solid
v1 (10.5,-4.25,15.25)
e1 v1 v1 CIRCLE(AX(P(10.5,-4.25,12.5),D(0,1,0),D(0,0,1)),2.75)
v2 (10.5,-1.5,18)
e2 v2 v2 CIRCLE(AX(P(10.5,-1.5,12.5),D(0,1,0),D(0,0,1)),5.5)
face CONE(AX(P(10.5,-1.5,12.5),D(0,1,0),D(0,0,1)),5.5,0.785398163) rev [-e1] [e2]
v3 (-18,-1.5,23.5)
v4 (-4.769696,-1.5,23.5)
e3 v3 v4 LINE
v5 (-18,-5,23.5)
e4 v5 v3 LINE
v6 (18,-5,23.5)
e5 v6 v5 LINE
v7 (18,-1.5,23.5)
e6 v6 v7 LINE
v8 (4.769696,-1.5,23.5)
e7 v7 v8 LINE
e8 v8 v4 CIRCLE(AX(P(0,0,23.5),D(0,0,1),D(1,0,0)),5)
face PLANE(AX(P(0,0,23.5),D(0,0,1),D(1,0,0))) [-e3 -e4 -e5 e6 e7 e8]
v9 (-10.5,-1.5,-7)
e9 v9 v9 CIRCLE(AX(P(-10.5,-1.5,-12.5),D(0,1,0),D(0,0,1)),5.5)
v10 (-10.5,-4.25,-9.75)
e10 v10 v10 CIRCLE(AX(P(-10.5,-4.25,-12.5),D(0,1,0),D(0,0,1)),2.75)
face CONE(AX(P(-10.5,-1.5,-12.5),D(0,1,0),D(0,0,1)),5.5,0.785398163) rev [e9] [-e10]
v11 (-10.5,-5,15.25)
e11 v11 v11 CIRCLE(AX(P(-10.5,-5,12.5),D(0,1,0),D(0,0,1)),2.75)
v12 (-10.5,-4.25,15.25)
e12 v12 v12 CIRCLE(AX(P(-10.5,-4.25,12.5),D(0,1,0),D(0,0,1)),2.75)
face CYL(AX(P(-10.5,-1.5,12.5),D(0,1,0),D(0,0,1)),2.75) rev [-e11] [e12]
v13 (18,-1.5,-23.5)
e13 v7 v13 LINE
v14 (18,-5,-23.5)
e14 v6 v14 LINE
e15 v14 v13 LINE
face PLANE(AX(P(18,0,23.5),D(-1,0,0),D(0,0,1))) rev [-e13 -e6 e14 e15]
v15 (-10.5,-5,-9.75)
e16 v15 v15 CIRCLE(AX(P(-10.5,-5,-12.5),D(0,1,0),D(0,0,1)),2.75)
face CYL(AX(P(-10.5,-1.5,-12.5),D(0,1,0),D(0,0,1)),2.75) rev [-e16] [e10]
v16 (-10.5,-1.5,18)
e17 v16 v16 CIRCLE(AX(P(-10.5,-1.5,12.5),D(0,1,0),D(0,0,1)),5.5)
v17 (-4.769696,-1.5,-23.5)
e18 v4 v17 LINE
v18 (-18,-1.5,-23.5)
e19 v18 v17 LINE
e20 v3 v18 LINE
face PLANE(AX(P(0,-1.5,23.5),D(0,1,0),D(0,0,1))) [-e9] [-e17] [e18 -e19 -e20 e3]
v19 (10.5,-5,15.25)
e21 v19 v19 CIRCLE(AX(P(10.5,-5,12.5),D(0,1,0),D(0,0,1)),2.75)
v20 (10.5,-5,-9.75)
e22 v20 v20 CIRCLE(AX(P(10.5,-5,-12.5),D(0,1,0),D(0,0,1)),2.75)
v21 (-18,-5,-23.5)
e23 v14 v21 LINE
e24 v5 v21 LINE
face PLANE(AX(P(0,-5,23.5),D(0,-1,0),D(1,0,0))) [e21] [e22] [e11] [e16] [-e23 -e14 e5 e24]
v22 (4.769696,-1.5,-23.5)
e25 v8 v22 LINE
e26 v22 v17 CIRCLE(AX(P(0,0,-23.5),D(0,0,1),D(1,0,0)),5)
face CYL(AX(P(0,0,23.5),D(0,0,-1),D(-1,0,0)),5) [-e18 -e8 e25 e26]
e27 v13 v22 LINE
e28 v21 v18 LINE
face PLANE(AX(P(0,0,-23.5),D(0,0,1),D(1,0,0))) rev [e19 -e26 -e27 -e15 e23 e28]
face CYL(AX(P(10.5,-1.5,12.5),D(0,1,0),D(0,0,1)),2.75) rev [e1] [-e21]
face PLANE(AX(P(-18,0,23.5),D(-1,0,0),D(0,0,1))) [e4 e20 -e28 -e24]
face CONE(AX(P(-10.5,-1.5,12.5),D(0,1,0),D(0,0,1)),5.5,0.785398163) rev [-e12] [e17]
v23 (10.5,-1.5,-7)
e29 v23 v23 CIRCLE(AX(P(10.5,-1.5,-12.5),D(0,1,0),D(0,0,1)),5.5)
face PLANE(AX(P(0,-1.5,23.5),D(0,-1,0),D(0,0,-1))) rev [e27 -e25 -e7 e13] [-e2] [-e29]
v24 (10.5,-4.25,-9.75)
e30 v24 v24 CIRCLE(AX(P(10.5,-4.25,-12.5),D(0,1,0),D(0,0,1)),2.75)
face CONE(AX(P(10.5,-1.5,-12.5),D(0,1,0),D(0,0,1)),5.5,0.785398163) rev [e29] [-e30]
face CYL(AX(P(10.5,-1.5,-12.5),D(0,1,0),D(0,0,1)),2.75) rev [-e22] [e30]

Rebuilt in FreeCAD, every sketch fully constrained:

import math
import FreeCAD as App
import Part
import Sketcher
from FreeCAD import Vector
Q = App.Units.Quantity

doc = App.newDocument("Part")
params = doc.addObject("Spreadsheet::Sheet", "Params")
for row, (alias, value) in enumerate([
    ("sketch1_radius", "5 mm"),
    ("sketch1_width", "18 mm"),
    ("sketch1_height", "3.5 mm"),
    ("pad1_length", "47 mm"),
    ("sketch2_height", "5.5 mm"),
    ("sketch2_width", "0.75 mm"),
    ("groove_angle", "360 deg"),
    ("linearpattern_pitch", "25 mm"),
    ("sketch3_height", "5.5 mm"),
    ("sketch3_width", "0.75 mm"),
    ("groove2_angle", "360 deg"),
], start=1):
    params.set(f"A{row}", alias)
    params.set(f"B{row}", "=" + value)
    params.setAlias(f"B{row}", alias)

body = doc.addObject("PartDesign::Body", "Body")

sketch1 = body.newObject("Sketcher::SketchObject", "Sketch")
sketch1.AttachmentSupport = (doc.getObject("XY_Plane"), [""])
sketch1.MapMode = "FlatFace"
sketch1.addGeometry(Part.LineSegment(Vector(-18, -5, 0), Vector(0, -5, 0)), False)
sketch1.addGeometry(Part.ArcOfCircle(Part.Circle(Vector(0, 0, 0), Vector(0, 0, 1), 5), math.radians(-90), math.radians(197.457603)), False)
sketch1.addGeometry(Part.LineSegment(Vector(-4.769696, -1.5, 0), Vector(-18, -1.5, 0)), False)
sketch1.addGeometry(Part.LineSegment(Vector(-18, -1.5, 0), Vector(-18, -5, 0)), False)
sketch1.addConstraint(Sketcher.Constraint("Tangent", 0, 2, 1, 1))
sketch1.addConstraint(Sketcher.Constraint("Coincident", 1, 2, 2, 1))
sketch1.addConstraint(Sketcher.Constraint("Coincident", 2, 2, 3, 1))
sketch1.addConstraint(Sketcher.Constraint("Coincident", 3, 2, 0, 1))
sketch1.addConstraint(Sketcher.Constraint("Horizontal", 0))
sketch1.addConstraint(Sketcher.Constraint("Horizontal", 2))
sketch1.addConstraint(Sketcher.Constraint("Vertical", 3))
sketch1.addConstraint(Sketcher.Constraint("Coincident", 1, 3, -1, 1))
sketch1.addConstraint(Sketcher.Constraint("Radius", 1, 5.0))
sketch1.addConstraint(Sketcher.Constraint("DistanceX", 0, 1, 0, 2, 18.0))
sketch1.addConstraint(Sketcher.Constraint("DistanceY", 3, 2, 3, 1, 3.5))
sketch1.setExpression("Constraints[8]", "Params.sketch1_radius")
sketch1.setExpression("Constraints[9]", "Params.sketch1_width")
sketch1.setExpression("Constraints[10]", "Params.sketch1_height")
pad1 = body.newObject("PartDesign::Pad", "Pad")
pad1.Profile = sketch1
pad1.setExpression("Length", "Params.pad1_length")
pad1.Midplane = True

sketch2 = body.newObject("Sketcher::SketchObject", "Sketch001")
sketch2.AttachmentSupport = (doc.getObject("YZ_Plane"), [""])
sketch2.MapMode = "FlatFace"
sketch2.AttachmentOffset = App.Placement(Vector(0, 0, -10.5), App.Rotation())
sketch2.addGeometry(Part.LineSegment(Vector(-6.652367, -12.5, 0), Vector(-1.5, -12.5, 0)), False)
sketch2.addGeometry(Part.LineSegment(Vector(-1.5, -12.5, 0), Vector(-1.5, -7, 0)), False)
sketch2.addGeometry(Part.LineSegment(Vector(-1.5, -7, 0), Vector(-4.25, -9.75, 0)), False)
sketch2.addGeometry(Part.LineSegment(Vector(-4.25, -9.75, 0), Vector(-5, -9.75, 0)), False)
sketch2.addGeometry(Part.LineSegment(Vector(-5, -9.75, 0), Vector(-6.652367, -12.5, 0)), False)
sketch2.addGeometry(Part.LineSegment(Vector(-1.5, -12.5, 0), Vector(-6.652367, -12.5, 0)), True)
sketch2.addConstraint(Sketcher.Constraint("Coincident", 0, 2, 1, 1))
sketch2.addConstraint(Sketcher.Constraint("Coincident", 1, 2, 2, 1))
sketch2.addConstraint(Sketcher.Constraint("Coincident", 2, 2, 3, 1))
sketch2.addConstraint(Sketcher.Constraint("Coincident", 3, 2, 4, 1))
sketch2.addConstraint(Sketcher.Constraint("Coincident", 4, 2, 0, 1))
sketch2.addConstraint(Sketcher.Constraint("Horizontal", 0))
sketch2.addConstraint(Sketcher.Constraint("Vertical", 1))
sketch2.addConstraint(Sketcher.Constraint("Horizontal", 3))
sketch2.addConstraint(Sketcher.Constraint("Horizontal", 5))
sketch2.addConstraint(Sketcher.Constraint("Coincident", 5, 1, 0, 2))
sketch2.addConstraint(Sketcher.Constraint("Equal", 0, 5))
sketch2.addConstraint(Sketcher.Constraint("Angle", 2, Q("-135 deg")))
sketch2.addConstraint(Sketcher.Constraint("Angle", 4, Q("-121 deg")))
sketch2.addConstraint(Sketcher.Constraint("DistanceY", 1, 1, 1, 2, 5.5))
sketch2.addConstraint(Sketcher.Constraint("DistanceY", 1, 2, -1, 1, 7.0))
sketch2.addConstraint(Sketcher.Constraint("DistanceX", 3, 2, -1, 1, 5.0))
sketch2.addConstraint(Sketcher.Constraint("DistanceX", 3, 2, 3, 1, 0.75))
sketch2.addConstraint(Sketcher.Constraint("DistanceX", 0, 2, -1, 1, 1.5))
sketch2.setExpression("Constraints[13]", "Params.sketch2_height")
sketch2.setExpression("Constraints[16]", "Params.sketch2_width")
groove = body.newObject("PartDesign::Groove", "Groove")
groove.Profile = sketch2
groove.ReferenceAxis = (sketch2, ["Axis0"])
groove.setExpression("Angle", "Params.groove_angle")
doc.recompute()

linearpattern = body.newObject("PartDesign::LinearPattern", "LinearPattern")
linearpattern.Originals = [groove]
linearpattern.Direction = (doc.getObject("Z_Axis"), [""])
linearpattern.Mode = "offset"
linearpattern.setExpression("Offset", "Params.linearpattern_pitch")
linearpattern.Occurrences = 2
body.Tip = linearpattern
doc.recompute()

mirrored = body.newObject("PartDesign::Mirrored", "Mirrored")
mirrored.Originals = [pad1]
mirrored.MirrorPlane = (doc.getObject("YZ_Plane"), [""])
body.Tip = mirrored
doc.recompute()

mirrored2 = body.newObject("PartDesign::Mirrored", "Mirrored001")
mirrored2.Originals = [groove]
mirrored2.MirrorPlane = (doc.getObject("YZ_Plane"), [""])
body.Tip = mirrored2

sketch3 = body.newObject("Sketcher::SketchObject", "Sketch002")
sketch3.AttachmentSupport = (doc.getObject("YZ_Plane"), [""])
sketch3.MapMode = "FlatFace"
sketch3.AttachmentOffset = App.Placement(Vector(0, 0, 10.5), App.Rotation())
sketch3.addGeometry(Part.LineSegment(Vector(-1.5, 12.5, 0), Vector(-6.652367, 12.5, 0)), False)
sketch3.addGeometry(Part.LineSegment(Vector(-6.652367, 12.5, 0), Vector(-5, 15.25, 0)), False)
sketch3.addGeometry(Part.LineSegment(Vector(-5, 15.25, 0), Vector(-4.25, 15.25, 0)), False)
sketch3.addGeometry(Part.LineSegment(Vector(-4.25, 15.25, 0), Vector(-1.5, 18, 0)), False)
sketch3.addGeometry(Part.LineSegment(Vector(-1.5, 18, 0), Vector(-1.5, 12.5, 0)), False)
sketch3.addGeometry(Part.LineSegment(Vector(-6.652367, 12.5, 0), Vector(-1.5, 12.5, 0)), True)
sketch3.addConstraint(Sketcher.Constraint("Coincident", 0, 2, 1, 1))
sketch3.addConstraint(Sketcher.Constraint("Coincident", 1, 2, 2, 1))
sketch3.addConstraint(Sketcher.Constraint("Coincident", 2, 2, 3, 1))
sketch3.addConstraint(Sketcher.Constraint("Coincident", 3, 2, 4, 1))
sketch3.addConstraint(Sketcher.Constraint("Coincident", 4, 2, 0, 1))
sketch3.addConstraint(Sketcher.Constraint("Horizontal", 0))
sketch3.addConstraint(Sketcher.Constraint("Horizontal", 2))
sketch3.addConstraint(Sketcher.Constraint("Vertical", 4))
sketch3.addConstraint(Sketcher.Constraint("Horizontal", 5))
sketch3.addConstraint(Sketcher.Constraint("Coincident", 5, 1, 0, 2))
sketch3.addConstraint(Sketcher.Constraint("Vertical", 3, 2, 5, 2))
sketch3.addConstraint(Sketcher.Constraint("Angle", 1, Q("59 deg")))
sketch3.addConstraint(Sketcher.Constraint("Angle", 3, Q("45 deg")))
sketch3.addConstraint(Sketcher.Constraint("DistanceY", 4, 2, 4, 1, 5.5))
sketch3.addConstraint(Sketcher.Constraint("DistanceX", 1, 2, -1, 1, 5.0))
sketch3.addConstraint(Sketcher.Constraint("DistanceY", -1, 1, 3, 2, 18.0))
sketch3.addConstraint(Sketcher.Constraint("DistanceX", 2, 1, 2, 2, 0.75))
sketch3.addConstraint(Sketcher.Constraint("DistanceX", 3, 2, -1, 1, 1.5))
sketch3.setExpression("Constraints[13]", "Params.sketch3_height")
sketch3.setExpression("Constraints[16]", "Params.sketch3_width")
groove2 = body.newObject("PartDesign::Groove", "Groove001")
groove2.Profile = sketch3
groove2.ReferenceAxis = (sketch3, ["Axis0"])
groove2.setExpression("Angle", "Params.groove2_angle")

doc.recompute()
